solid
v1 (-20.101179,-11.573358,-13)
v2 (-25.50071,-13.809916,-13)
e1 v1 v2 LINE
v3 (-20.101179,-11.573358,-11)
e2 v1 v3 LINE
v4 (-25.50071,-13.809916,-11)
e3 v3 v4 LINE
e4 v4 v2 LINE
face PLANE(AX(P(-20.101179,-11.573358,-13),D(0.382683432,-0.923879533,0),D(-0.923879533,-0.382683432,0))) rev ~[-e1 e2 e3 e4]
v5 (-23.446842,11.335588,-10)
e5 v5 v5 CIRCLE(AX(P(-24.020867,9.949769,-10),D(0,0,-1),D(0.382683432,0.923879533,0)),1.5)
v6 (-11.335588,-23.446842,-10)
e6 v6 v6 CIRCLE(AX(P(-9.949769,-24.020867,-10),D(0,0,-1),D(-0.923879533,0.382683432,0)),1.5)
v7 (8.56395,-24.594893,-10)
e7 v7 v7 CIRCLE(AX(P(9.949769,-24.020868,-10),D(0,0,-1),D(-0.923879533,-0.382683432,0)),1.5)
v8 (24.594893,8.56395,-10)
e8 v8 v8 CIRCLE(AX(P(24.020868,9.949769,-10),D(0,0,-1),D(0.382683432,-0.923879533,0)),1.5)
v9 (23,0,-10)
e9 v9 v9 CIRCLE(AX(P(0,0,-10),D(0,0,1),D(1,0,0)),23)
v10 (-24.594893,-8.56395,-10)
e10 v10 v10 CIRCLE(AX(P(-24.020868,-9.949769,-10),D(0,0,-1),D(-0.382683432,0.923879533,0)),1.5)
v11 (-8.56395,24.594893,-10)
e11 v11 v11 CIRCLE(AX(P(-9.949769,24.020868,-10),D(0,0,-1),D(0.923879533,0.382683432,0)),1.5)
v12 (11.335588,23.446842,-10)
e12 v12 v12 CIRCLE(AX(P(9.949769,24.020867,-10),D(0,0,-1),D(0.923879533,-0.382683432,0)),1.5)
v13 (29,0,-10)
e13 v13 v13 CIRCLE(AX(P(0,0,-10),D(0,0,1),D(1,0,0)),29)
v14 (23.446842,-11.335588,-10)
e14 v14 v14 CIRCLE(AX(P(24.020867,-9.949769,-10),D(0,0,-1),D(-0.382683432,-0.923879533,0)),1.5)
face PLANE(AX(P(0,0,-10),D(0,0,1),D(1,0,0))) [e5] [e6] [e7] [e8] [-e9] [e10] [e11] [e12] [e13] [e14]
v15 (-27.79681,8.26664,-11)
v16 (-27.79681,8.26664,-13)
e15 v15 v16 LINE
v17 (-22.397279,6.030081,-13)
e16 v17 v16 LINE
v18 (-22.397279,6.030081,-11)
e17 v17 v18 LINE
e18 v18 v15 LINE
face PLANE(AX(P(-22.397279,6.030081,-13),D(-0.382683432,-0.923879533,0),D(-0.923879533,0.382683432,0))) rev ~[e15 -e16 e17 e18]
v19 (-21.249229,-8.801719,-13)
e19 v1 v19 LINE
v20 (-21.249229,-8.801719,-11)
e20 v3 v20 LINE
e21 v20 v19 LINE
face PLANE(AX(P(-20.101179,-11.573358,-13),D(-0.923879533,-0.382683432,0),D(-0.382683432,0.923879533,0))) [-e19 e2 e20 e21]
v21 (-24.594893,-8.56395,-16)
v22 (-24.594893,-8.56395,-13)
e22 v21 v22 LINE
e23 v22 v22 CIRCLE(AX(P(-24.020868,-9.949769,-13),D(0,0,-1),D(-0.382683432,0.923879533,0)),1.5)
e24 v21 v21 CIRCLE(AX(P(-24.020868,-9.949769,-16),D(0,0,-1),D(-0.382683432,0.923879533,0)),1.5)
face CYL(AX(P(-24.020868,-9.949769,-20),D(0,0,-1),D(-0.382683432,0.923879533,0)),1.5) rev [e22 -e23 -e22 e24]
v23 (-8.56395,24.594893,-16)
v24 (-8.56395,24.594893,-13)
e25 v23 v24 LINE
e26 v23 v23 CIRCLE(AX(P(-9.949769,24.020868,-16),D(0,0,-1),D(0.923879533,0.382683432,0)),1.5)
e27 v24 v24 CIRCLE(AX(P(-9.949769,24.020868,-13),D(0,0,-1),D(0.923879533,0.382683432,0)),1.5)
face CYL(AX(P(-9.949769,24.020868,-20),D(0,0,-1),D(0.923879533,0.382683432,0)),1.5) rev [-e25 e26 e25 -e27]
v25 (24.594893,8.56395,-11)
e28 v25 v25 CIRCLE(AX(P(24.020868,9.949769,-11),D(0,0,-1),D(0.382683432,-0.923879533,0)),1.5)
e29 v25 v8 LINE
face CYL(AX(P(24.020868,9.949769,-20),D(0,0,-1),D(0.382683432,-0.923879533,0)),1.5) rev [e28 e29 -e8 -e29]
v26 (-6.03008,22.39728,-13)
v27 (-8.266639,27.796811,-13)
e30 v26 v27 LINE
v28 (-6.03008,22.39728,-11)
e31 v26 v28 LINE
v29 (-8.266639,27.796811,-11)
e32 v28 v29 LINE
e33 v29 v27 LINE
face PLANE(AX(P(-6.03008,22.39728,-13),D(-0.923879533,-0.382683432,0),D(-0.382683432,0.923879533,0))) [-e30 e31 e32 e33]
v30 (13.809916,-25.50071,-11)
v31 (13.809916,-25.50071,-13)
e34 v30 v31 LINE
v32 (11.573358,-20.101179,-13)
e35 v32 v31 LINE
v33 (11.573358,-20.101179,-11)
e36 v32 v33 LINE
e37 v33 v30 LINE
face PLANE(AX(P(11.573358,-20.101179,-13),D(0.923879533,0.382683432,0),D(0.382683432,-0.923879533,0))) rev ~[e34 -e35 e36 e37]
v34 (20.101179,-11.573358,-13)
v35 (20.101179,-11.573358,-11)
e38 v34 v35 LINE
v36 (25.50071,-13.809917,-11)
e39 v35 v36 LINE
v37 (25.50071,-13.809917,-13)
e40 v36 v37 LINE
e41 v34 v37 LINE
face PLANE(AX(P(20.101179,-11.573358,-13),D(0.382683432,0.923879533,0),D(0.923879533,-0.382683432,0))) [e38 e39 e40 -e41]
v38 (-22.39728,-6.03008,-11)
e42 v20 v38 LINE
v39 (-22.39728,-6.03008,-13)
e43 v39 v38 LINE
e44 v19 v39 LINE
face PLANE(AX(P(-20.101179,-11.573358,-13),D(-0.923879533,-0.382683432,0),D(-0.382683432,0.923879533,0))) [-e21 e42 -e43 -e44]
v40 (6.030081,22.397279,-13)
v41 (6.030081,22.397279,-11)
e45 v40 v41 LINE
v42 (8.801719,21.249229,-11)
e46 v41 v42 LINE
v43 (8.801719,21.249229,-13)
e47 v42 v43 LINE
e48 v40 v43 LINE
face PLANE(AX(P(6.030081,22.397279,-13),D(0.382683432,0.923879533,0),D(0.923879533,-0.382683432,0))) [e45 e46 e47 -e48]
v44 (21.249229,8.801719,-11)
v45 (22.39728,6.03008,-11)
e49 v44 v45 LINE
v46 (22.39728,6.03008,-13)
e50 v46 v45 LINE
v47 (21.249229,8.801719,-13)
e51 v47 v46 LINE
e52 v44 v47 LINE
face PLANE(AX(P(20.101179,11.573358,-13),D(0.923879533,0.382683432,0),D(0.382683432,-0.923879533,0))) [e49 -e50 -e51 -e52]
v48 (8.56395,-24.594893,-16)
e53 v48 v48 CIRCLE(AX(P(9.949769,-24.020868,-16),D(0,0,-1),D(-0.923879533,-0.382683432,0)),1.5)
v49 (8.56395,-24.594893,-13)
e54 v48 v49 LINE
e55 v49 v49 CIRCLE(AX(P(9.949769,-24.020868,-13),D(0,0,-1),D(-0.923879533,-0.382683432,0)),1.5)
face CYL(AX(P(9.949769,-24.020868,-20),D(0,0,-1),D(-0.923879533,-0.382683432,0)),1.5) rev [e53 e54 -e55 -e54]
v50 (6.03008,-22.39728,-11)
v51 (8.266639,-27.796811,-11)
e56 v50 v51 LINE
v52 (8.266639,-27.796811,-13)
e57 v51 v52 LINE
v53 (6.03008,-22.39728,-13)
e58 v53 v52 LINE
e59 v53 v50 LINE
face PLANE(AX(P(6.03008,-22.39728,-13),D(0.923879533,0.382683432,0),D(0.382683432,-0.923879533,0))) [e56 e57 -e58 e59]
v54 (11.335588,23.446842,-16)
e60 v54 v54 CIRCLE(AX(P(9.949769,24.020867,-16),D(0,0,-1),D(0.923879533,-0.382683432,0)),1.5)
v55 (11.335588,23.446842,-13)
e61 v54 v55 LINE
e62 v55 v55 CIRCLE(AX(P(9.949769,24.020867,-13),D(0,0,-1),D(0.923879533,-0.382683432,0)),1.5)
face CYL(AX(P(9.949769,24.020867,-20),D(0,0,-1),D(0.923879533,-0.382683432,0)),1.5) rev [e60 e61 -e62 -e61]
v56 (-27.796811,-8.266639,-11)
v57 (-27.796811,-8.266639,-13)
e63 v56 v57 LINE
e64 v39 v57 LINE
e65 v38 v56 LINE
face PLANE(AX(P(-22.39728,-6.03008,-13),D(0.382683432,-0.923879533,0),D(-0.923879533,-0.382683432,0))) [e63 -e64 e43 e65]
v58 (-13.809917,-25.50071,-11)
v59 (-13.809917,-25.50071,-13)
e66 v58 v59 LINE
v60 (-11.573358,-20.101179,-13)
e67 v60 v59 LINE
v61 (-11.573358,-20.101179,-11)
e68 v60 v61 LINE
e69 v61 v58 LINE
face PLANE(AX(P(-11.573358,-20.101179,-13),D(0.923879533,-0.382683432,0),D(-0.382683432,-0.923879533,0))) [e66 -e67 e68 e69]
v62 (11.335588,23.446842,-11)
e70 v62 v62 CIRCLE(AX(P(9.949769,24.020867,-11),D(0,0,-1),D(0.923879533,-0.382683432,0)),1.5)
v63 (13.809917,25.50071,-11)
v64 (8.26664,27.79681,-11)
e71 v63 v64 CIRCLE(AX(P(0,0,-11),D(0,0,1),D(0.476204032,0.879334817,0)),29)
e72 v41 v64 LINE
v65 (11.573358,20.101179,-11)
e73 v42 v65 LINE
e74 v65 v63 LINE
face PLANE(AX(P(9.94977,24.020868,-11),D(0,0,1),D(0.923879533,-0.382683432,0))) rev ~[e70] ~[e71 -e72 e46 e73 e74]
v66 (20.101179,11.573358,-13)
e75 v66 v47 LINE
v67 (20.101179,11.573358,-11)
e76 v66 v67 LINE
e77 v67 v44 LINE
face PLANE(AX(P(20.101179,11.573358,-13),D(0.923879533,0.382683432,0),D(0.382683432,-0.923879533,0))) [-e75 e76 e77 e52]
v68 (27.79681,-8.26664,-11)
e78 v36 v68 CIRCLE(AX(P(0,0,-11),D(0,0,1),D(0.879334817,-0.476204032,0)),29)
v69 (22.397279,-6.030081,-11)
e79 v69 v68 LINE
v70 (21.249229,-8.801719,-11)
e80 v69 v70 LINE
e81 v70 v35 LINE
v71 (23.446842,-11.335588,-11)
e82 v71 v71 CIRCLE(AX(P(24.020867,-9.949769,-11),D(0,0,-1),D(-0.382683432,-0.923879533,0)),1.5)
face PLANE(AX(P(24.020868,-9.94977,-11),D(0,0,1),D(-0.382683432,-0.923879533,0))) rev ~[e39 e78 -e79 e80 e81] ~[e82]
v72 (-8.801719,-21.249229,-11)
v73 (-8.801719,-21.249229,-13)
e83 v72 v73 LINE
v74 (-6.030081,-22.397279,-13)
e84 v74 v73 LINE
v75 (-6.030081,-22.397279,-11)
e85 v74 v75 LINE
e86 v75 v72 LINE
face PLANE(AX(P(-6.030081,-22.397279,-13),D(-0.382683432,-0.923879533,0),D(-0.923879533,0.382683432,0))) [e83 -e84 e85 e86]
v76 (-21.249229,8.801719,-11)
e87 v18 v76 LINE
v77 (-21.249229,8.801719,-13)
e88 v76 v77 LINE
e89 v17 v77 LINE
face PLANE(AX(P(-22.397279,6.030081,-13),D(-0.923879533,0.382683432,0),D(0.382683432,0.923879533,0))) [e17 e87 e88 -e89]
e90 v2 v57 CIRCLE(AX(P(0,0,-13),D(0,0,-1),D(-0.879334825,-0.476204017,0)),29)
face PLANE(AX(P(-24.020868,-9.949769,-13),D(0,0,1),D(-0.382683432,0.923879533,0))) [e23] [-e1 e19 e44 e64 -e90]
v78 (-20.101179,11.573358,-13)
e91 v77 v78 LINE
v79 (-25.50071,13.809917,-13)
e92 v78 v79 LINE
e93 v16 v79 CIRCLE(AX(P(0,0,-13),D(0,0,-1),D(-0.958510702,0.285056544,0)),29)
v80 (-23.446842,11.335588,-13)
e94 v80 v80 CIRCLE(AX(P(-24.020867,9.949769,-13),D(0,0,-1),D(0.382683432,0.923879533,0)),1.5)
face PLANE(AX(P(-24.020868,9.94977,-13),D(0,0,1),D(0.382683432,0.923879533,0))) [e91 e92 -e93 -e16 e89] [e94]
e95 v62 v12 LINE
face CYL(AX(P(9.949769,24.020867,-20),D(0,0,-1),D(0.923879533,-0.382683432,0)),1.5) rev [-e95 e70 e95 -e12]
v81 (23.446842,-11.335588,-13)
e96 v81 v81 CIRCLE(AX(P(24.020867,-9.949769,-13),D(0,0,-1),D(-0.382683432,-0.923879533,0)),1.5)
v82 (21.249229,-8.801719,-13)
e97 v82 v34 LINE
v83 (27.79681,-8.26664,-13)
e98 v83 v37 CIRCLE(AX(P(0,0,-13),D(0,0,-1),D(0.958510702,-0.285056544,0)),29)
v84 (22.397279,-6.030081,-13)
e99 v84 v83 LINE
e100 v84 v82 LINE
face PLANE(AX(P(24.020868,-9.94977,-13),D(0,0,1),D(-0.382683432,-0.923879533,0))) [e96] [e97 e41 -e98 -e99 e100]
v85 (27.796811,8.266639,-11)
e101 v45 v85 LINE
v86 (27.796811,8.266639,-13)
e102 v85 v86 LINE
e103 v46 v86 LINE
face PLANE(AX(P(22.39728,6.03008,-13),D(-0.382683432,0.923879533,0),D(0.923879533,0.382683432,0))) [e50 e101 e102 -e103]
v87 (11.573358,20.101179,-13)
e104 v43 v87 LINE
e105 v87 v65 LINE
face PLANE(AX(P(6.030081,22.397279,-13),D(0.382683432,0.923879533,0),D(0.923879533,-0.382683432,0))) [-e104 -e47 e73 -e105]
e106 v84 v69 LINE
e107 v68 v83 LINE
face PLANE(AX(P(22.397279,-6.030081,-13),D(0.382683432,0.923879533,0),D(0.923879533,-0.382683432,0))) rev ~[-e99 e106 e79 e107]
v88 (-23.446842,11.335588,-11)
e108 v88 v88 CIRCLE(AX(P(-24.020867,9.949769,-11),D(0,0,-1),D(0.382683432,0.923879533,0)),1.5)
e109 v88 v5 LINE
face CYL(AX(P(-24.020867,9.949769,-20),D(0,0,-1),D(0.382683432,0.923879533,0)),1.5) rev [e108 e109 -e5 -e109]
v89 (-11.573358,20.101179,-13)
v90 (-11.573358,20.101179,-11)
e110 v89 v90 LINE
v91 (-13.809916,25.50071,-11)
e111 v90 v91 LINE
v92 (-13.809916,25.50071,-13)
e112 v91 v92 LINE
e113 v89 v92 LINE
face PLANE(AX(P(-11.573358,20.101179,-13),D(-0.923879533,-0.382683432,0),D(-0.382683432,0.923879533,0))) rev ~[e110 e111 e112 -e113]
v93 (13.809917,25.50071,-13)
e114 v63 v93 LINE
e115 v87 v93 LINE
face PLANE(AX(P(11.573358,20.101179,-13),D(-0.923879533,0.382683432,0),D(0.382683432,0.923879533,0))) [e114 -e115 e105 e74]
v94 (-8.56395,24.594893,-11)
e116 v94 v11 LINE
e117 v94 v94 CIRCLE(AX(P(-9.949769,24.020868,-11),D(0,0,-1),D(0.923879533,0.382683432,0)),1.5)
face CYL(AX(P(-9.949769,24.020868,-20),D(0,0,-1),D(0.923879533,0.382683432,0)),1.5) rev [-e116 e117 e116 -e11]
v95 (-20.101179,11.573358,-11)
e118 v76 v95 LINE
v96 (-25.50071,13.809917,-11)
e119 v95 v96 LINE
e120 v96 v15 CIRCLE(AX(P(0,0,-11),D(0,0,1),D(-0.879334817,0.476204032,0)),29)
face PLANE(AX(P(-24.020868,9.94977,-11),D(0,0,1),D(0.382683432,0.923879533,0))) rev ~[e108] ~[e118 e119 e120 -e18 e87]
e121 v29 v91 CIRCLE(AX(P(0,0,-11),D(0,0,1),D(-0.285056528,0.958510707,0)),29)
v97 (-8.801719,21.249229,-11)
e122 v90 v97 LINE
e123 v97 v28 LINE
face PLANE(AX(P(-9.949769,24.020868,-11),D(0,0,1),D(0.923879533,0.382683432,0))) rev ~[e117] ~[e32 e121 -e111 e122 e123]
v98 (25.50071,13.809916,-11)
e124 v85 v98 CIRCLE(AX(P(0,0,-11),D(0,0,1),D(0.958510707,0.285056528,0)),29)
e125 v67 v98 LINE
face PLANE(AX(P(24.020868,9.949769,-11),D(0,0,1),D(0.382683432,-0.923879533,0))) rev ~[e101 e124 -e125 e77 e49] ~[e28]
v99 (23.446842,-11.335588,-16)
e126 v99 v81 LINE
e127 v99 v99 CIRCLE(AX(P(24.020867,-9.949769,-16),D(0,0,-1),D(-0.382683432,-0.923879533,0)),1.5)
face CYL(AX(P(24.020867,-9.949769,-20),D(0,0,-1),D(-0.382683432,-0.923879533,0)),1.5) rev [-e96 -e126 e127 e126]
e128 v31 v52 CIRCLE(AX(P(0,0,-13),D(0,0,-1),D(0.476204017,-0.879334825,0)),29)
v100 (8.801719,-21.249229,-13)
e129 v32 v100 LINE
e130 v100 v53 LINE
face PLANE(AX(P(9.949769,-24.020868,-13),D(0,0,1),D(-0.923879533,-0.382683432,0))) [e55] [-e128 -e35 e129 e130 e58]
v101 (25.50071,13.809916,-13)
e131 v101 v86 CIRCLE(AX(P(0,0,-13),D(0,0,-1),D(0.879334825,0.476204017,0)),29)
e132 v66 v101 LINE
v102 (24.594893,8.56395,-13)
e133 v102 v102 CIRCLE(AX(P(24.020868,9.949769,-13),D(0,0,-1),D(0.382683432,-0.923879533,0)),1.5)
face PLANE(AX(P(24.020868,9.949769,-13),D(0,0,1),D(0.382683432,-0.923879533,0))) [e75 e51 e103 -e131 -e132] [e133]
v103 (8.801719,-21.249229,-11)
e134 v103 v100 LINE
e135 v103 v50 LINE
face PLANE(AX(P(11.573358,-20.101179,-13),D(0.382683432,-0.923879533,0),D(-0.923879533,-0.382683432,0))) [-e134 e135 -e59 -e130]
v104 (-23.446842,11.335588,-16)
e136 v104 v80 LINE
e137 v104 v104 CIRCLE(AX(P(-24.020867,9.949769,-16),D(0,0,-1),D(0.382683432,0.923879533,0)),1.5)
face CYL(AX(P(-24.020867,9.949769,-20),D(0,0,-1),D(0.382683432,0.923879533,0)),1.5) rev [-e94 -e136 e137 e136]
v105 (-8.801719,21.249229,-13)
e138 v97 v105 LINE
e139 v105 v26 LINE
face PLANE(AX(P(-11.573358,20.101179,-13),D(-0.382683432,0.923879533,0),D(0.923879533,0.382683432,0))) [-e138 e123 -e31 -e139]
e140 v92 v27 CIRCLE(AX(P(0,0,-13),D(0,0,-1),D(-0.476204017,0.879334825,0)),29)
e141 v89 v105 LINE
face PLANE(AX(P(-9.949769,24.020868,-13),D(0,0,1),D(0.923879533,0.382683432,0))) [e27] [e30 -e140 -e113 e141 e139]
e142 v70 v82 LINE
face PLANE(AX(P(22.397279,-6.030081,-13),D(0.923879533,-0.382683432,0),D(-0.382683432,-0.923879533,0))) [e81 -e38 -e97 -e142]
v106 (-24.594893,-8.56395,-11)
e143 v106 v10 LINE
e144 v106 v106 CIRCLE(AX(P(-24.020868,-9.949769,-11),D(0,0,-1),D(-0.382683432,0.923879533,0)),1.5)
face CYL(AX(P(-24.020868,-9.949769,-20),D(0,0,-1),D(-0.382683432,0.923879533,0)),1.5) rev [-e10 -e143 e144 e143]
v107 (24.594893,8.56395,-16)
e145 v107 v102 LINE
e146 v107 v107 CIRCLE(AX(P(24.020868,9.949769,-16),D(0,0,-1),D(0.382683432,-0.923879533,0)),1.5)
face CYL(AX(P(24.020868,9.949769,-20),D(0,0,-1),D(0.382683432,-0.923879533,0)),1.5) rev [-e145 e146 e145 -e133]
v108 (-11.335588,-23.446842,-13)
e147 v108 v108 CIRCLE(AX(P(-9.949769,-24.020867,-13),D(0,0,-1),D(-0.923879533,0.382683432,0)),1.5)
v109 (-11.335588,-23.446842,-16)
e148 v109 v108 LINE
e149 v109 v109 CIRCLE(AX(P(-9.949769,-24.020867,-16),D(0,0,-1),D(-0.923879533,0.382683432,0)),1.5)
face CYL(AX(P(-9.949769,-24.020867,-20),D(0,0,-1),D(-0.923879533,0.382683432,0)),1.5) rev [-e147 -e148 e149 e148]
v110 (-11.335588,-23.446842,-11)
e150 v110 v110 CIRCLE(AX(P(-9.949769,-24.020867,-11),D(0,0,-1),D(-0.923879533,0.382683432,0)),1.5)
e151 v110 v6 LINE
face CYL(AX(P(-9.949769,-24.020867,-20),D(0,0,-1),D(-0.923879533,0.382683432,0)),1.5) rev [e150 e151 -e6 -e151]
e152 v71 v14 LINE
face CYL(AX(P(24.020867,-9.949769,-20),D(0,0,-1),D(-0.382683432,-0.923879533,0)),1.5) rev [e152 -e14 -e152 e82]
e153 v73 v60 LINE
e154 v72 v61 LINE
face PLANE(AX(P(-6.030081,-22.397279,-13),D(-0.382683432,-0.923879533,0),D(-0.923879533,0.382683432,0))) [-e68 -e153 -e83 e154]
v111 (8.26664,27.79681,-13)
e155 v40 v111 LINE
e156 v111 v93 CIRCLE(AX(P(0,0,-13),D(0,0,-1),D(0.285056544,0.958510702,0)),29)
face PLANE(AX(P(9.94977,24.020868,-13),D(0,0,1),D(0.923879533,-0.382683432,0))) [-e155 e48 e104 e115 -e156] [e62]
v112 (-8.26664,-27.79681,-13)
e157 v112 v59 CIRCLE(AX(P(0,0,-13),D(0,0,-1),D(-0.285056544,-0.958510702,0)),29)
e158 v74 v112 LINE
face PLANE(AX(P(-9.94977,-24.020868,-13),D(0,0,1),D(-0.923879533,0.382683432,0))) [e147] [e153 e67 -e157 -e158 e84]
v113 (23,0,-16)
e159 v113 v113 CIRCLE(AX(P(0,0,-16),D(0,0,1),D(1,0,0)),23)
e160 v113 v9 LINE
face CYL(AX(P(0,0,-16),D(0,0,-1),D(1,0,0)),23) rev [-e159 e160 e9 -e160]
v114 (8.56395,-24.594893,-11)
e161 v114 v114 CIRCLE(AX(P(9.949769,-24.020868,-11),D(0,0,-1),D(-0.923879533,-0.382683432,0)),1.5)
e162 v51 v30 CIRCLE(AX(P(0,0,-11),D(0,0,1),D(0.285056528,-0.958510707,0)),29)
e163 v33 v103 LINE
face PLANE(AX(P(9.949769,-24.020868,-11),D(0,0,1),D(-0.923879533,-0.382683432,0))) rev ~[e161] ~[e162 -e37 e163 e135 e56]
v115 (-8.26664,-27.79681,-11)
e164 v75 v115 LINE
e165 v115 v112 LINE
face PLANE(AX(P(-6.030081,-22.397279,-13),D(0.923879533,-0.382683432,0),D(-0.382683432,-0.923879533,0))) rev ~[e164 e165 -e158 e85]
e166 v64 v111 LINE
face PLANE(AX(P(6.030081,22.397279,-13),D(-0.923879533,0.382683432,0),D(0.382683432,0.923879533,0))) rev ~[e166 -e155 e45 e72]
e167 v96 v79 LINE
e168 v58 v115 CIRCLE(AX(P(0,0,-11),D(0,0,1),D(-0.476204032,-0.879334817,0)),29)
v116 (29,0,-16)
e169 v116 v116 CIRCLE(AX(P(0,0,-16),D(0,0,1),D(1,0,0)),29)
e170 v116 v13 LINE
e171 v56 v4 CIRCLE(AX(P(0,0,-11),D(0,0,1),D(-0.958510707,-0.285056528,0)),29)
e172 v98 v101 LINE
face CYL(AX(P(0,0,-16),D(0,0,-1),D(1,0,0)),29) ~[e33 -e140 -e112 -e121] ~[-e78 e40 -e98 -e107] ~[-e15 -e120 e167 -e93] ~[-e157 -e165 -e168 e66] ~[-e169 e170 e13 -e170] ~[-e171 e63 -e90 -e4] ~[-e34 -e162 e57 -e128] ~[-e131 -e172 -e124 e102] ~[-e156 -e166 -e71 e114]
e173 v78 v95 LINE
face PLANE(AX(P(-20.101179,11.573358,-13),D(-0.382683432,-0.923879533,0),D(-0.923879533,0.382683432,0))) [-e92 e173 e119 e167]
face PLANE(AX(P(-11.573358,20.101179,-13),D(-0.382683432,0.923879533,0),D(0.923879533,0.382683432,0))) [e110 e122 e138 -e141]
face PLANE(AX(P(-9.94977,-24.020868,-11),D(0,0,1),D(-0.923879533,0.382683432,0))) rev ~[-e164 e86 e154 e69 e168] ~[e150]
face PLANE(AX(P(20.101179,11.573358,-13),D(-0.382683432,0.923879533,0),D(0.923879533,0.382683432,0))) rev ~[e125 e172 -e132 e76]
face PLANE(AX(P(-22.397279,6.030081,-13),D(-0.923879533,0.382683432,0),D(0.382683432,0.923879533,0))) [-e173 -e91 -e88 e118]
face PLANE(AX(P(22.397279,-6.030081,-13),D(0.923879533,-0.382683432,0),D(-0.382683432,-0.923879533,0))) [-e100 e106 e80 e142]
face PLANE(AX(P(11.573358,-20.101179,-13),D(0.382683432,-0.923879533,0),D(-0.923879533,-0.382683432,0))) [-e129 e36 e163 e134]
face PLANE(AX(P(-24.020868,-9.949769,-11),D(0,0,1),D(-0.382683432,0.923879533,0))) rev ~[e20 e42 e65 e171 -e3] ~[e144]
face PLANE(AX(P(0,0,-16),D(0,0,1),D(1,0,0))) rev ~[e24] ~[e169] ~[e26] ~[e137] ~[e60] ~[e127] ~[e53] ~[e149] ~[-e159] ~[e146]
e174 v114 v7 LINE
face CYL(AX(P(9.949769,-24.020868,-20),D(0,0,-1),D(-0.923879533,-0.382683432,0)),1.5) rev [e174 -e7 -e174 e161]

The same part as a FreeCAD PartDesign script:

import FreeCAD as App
import Part
import Sketcher
from FreeCAD import Vector
Q = App.Units.Quantity

doc = App.newDocument("Part")
body = doc.addObject("PartDesign::Body", "Body")

sketch1 = doc.addObject("Sketcher::SketchObject", "Sketch")
body.addObject(sketch1)
sketch1.AttachmentSupport = (doc.XY_Plane, [""])
sketch1.MapMode = "FlatFace"
sketch1.AttachmentOffset = App.Placement(Vector(0, 0, -13), App.Rotation())
sketch1.addGeometry([
    Part.LineSegment(Vector(-29, -3, 0), Vector(-23, -3, 0)),
    Part.LineSegment(Vector(-23, -3, 0), Vector(-23, 3, 0)),
    Part.LineSegment(Vector(-23, 3, 0), Vector(-29, 3, 0)),
    Part.LineSegment(Vector(-29, 3, 0), Vector(-29, -3, 0)),
], False)
sketch1.addConstraint([
    Sketcher.Constraint("Coincident", 0, 2, 1, 1),
    Sketcher.Constraint("Coincident", 1, 2, 2, 1),
    Sketcher.Constraint("Coincident", 2, 2, 3, 1),
    Sketcher.Constraint("Coincident", 3, 2, 0, 1),
    Sketcher.Constraint("Horizontal", 0),
    Sketcher.Constraint("Vertical", 1),
    Sketcher.Constraint("Horizontal", 2),
    Sketcher.Constraint("Vertical", 3),
    Sketcher.Constraint("Equal", 2, 1),
    Sketcher.Constraint("DistanceX", 0, 1, 0, 2, Q("6 mm")),
    Sketcher.Constraint("DistanceX", 0, 2, -1, 1, Q("23 mm")),
    Sketcher.Constraint("DistanceY", 0, 2, -1, 1, Q("3 mm")),
])
pad1 = doc.addObject("PartDesign::Pad", "Pad")
body.addObject(pad1)
pad1.Profile = sketch1
pad1.Length = 2
body2 = doc.addObject("PartDesign::Body", "Body001")

sketch2 = doc.addObject("Sketcher::SketchObject", "Sketch001")
body2.addObject(sketch2)
sketch2.AttachmentSupport = (doc.getObject("XY_Plane001"), [""])
sketch2.MapMode = "FlatFace"
sketch2.addGeometry([
    Part.LineSegment(Vector(0, 6, 0), Vector(0, 0, 0)),
    Part.LineSegment(Vector(0, 0, 0), Vector(6, 0, 0)),
    Part.LineSegment(Vector(6, 0, 0), Vector(6, 6, 0)),
    Part.LineSegment(Vector(6, 6, 0), Vector(0, 6, 0)),
], False)
sketch2.addConstraint([
    Sketcher.Constraint("Coincident", 0, 2, 1, 1),
    Sketcher.Constraint("Coincident", 1, 2, 2, 1),
    Sketcher.Constraint("Coincident", 2, 2, 3, 1),
    Sketcher.Constraint("Coincident", 3, 2, 0, 1),
    Sketcher.Constraint("Vertical", 0),
    Sketcher.Constraint("Horizontal", 1),
    Sketcher.Constraint("Vertical", 2),
    Sketcher.Constraint("Horizontal", 3),
    Sketcher.Constraint("Coincident", 0, 2, -1, 1),
    Sketcher.Constraint("Equal", 3, 0),
    Sketcher.Constraint("DistanceX", 1, 1, 1, 2, Q("6 mm")),
])
pad2 = doc.addObject("PartDesign::Pad", "Pad001")
body2.addObject(pad2)
pad2.Profile = sketch2
pad2.Length = 2
body3 = doc.addObject("PartDesign::Body", "Body002")
doc.recompute()

body2.Placement = App.Placement(Vector(-14.142136, -18.384776, -13), App.Rotation(Vector(0, 0, 1), 135))
boolean = doc.addObject("PartDesign::Boolean", "Boolean")
body3.addObject(boolean)
boolean.Type = "Fuse"
boolean.addObjects([body2])
body4 = doc.addObject("PartDesign::Body", "Body003")

sketch3 = doc.addObject("Sketcher::SketchObject", "Sketch002")
body4.addObject(sketch3)
sketch3.AttachmentSupport = (doc.getObject("XY_Plane003"), [""])
sketch3.MapMode = "FlatFace"
sketch3.AttachmentOffset = App.Placement(Vector(0, 0, -13), App.Rotation())
sketch3.addGeometry([
    Part.LineSegment(Vector(3, -29, 0), Vector(3, -23, 0)),
    Part.LineSegment(Vector(3, -23, 0), Vector(-3, -23, 0)),
    Part.LineSegment(Vector(-3, -23, 0), Vector(-3, -29, 0)),
    Part.LineSegment(Vector(-3, -29, 0), Vector(3, -29, 0)),
], False)
sketch3.addConstraint([
    Sketcher.Constraint("Coincident", 0, 2, 1, 1),
    Sketcher.Constraint("Coincident", 1, 2, 2, 1),
    Sketcher.Constraint("Coincident", 2, 2, 3, 1),
    Sketcher.Constraint("Coincident", 3, 2, 0, 1),
    Sketcher.Constraint("Vertical", 0),
    Sketcher.Constraint("Horizontal", 1),
    Sketcher.Constraint("Vertical", 2),
    Sketcher.Constraint("Horizontal", 3),
    Sketcher.Constraint("Equal", 3, 0),
    Sketcher.Constraint("DistanceX", 1, 2, 1, 1, Q("6 mm")),
    Sketcher.Constraint("DistanceX", -1, 1, 0, 2, Q("3 mm")),
    Sketcher.Constraint("DistanceY", 0, 2, -1, 1, Q("23 mm")),
])
pad3 = doc.addObject("PartDesign::Pad", "Pad002")
body4.addObject(pad3)
pad3.Profile = sketch3
pad3.Length = 2
body5 = doc.addObject("PartDesign::Body", "Body004")

sketch4 = doc.addObject("Sketcher::SketchObject", "Sketch003")
body5.addObject(sketch4)
sketch4.AttachmentSupport = (doc.getObject("XY_Plane004"), [""])
sketch4.MapMode = "FlatFace"
sketch4.addGeometry([
    Part.LineSegment(Vector(0, 6, 0), Vector(0, 0, 0)),
    Part.LineSegment(Vector(0, 0, 0), Vector(6, 0, 0)),
    Part.LineSegment(Vector(6, 0, 0), Vector(6, 6, 0)),
    Part.LineSegment(Vector(6, 6, 0), Vector(0, 6, 0)),
], False)
sketch4.addConstraint([
    Sketcher.Constraint("Coincident", 0, 2, 1, 1),
    Sketcher.Constraint("Coincident", 1, 2, 2, 1),
    Sketcher.Constraint("Coincident", 2, 2, 3, 1),
    Sketcher.Constraint("Coincident", 3, 2, 0, 1),
    Sketcher.Constraint("Vertical", 0),
    Sketcher.Constraint("Horizontal", 1),
    Sketcher.Constraint("Vertical", 2),
    Sketcher.Constraint("Horizontal", 3),
    Sketcher.Constraint("Coincident", 0, 2, -1, 1),
    Sketcher.Constraint("Equal", 3, 0),
    Sketcher.Constraint("DistanceX", 1, 1, 1, 2, Q("6 mm")),
])
pad4 = doc.addObject("PartDesign::Pad", "Pad003")
body5.addObject(pad4)
pad4.Profile = sketch4
pad4.Length = 2
body6 = doc.addObject("PartDesign::Body", "Body005")
doc.recompute()

body5.Placement = App.Placement(Vector(18.384776, -14.142136, -13), App.Rotation(Vector(0, 0, 1), 225))
boolean2 = doc.addObject("PartDesign::Boolean", "Boolean001")
body6.addObject(boolean2)
boolean2.Type = "Fuse"
boolean2.addObjects([body5])
body7 = doc.addObject("PartDesign::Body", "Body006")

sketch5 = doc.addObject("Sketcher::SketchObject", "Sketch004")
body7.addObject(sketch5)
sketch5.AttachmentSupport = (doc.getObject("XY_Plane006"), [""])
sketch5.MapMode = "FlatFace"
sketch5.AttachmentOffset = App.Placement(Vector(0, 0, -13), App.Rotation())
sketch5.addGeometry([
    Part.LineSegment(Vector(29, 3, 0), Vector(23, 3, 0)),
    Part.LineSegment(Vector(23, 3, 0), Vector(23, -3, 0)),
    Part.LineSegment(Vector(23, -3, 0), Vector(29, -3, 0)),
    Part.LineSegment(Vector(29, -3, 0), Vector(29, 3, 0)),
], False)
sketch5.addConstraint([
    Sketcher.Constraint("Coincident", 0, 2, 1, 1),
    Sketcher.Constraint("Coincident", 1, 2, 2, 1),
    Sketcher.Constraint("Coincident", 2, 2, 3, 1),
    Sketcher.Constraint("Coincident", 3, 2, 0, 1),
    Sketcher.Constraint("Horizontal", 0),
    Sketcher.Constraint("Vertical", 1),
    Sketcher.Constraint("Horizontal", 2),
    Sketcher.Constraint("Vertical", 3),
    Sketcher.Constraint("Equal", 2, 1),
    Sketcher.Constraint("DistanceX", 0, 2, 0, 1, Q("6 mm")),
    Sketcher.Constraint("DistanceX", -1, 1, 0, 2, Q("23 mm")),
    Sketcher.Constraint("DistanceY", -1, 1, 0, 2, Q("3 mm")),
])
pad5 = doc.addObject("PartDesign::Pad", "Pad004")
body7.addObject(pad5)
pad5.Profile = sketch5
pad5.Length = 2
body8 = doc.addObject("PartDesign::Body", "Body007")

sketch6 = doc.addObject("Sketcher::SketchObject", "Sketch005")
body8.addObject(sketch6)
sketch6.AttachmentSupport = (doc.getObject("XY_Plane007"), [""])
sketch6.MapMode = "FlatFace"
sketch6.addGeometry([
    Part.LineSegment(Vector(0, 6, 0), Vector(0, 0, 0)),
    Part.LineSegment(Vector(0, 0, 0), Vector(6, 0, 0)),
    Part.LineSegment(Vector(6, 0, 0), Vector(6, 6, 0)),
    Part.LineSegment(Vector(6, 6, 0), Vector(0, 6, 0)),
], False)
sketch6.addConstraint([
    Sketcher.Constraint("Coincident", 0, 2, 1, 1),
    Sketcher.Constraint("Coincident", 1, 2, 2, 1),
    Sketcher.Constraint("Coincident", 2, 2, 3, 1),
    Sketcher.Constraint("Coincident", 3, 2, 0, 1),
    Sketcher.Constraint("Vertical", 0),
    Sketcher.Constraint("Horizontal", 1),
    Sketcher.Constraint("Vertical", 2),
    Sketcher.Constraint("Horizontal", 3),
    Sketcher.Constraint("Coincident", 0, 2, -1, 1),
    Sketcher.Constraint("Equal", 3, 0),
    Sketcher.Constraint("DistanceX", 1, 1, 1, 2, Q("6 mm")),
])
pad6 = doc.addObject("PartDesign::Pad", "Pad005")
body8.addObject(pad6)
pad6.Profile = sketch6
pad6.Length = 2
body9 = doc.addObject("PartDesign::Body", "Body008")
doc.recompute()

body8.Placement = App.Placement(Vector(14.142136, 18.384776, -13), App.Rotation(Vector(0, 0, -1), 45))
boolean3 = doc.addObject("PartDesign::Boolean", "Boolean002")
body9.addObject(boolean3)
boolean3.Type = "Fuse"
boolean3.addObjects([body8])
body10 = doc.addObject("PartDesign::Body", "Body009")

sketch7 = doc.addObject("Sketcher::SketchObject", "Sketch006")
body10.addObject(sketch7)
sketch7.AttachmentSupport = (doc.getObject("XY_Plane009"), [""])
sketch7.MapMode = "FlatFace"
sketch7.AttachmentOffset = App.Placement(Vector(0, 0, -13), App.Rotation())
sketch7.addGeometry([
    Part.LineSegment(Vector(-3, 29, 0), Vector(-3, 23, 0)),
    Part.LineSegment(Vector(-3, 23, 0), Vector(3, 23, 0)),
    Part.LineSegment(Vector(3, 23, 0), Vector(3, 29, 0)),
    Part.LineSegment(Vector(3, 29, 0), Vector(-3, 29, 0)),
], False)
sketch7.addConstraint([
    Sketcher.Constraint("Coincident", 0, 2, 1, 1),
    Sketcher.Constraint("Coincident", 1, 2, 2, 1),
    Sketcher.Constraint("Coincident", 2, 2, 3, 1),
    Sketcher.Constraint("Coincident", 3, 2, 0, 1),
    Sketcher.Constraint("Vertical", 0),
    Sketcher.Constraint("Horizontal", 1),
    Sketcher.Constraint("Vertical", 2),
    Sketcher.Constraint("Horizontal", 3),
    Sketcher.Constraint("Equal", 3, 0),
    Sketcher.Constraint("DistanceX", 1, 1, 1, 2, Q("6 mm")),
    Sketcher.Constraint("DistanceX", 0, 2, -1, 1, Q("3 mm")),
    Sketcher.Constraint("DistanceY", -1, 1, 0, 2, Q("23 mm")),
])
pad7 = doc.addObject("PartDesign::Pad", "Pad006")
body10.addObject(pad7)
pad7.Profile = sketch7
pad7.Length = 2
body11 = doc.addObject("PartDesign::Body", "Body010")

sketch8 = doc.addObject("Sketcher::SketchObject", "Sketch007")
body11.addObject(sketch8)
sketch8.AttachmentSupport = (doc.getObject("XY_Plane010"), [""])
sketch8.MapMode = "FlatFace"
sketch8.addGeometry([
    Part.LineSegment(Vector(0, 6, 0), Vector(0, 0, 0)),
    Part.LineSegment(Vector(0, 0, 0), Vector(6, 0, 0)),
    Part.LineSegment(Vector(6, 0, 0), Vector(6, 6, 0)),
    Part.LineSegment(Vector(6, 6, 0), Vector(0, 6, 0)),
], False)
sketch8.addConstraint([
    Sketcher.Constraint("Coincident", 0, 2, 1, 1),
    Sketcher.Constraint("Coincident", 1, 2, 2, 1),
    Sketcher.Constraint("Coincident", 2, 2, 3, 1),
    Sketcher.Constraint("Coincident", 3, 2, 0, 1),
    Sketcher.Constraint("Vertical", 0),
    Sketcher.Constraint("Horizontal", 1),
    Sketcher.Constraint("Vertical", 2),
    Sketcher.Constraint("Horizontal", 3),
    Sketcher.Constraint("Coincident", 0, 2, -1, 1),
    Sketcher.Constraint("Equal", 3, 0),
    Sketcher.Constraint("DistanceX", 1, 1, 1, 2, Q("6 mm")),
])
pad8 = doc.addObject("PartDesign::Pad", "Pad007")
body11.addObject(pad8)
pad8.Profile = sketch8
pad8.Length = 2
body12 = doc.addObject("PartDesign::Body", "Body011")
body12.AllowCompound = True
doc.recompute()

body11.Placement = App.Placement(Vector(-18.384776, 14.142136, -13), App.Rotation(Vector(0, 0, 1), 45))
boolean4 = doc.addObject("PartDesign::Boolean", "Boolean003")
body12.addObject(boolean4)
boolean4.Type = "Fuse"
boolean4.addObjects([body11])
doc.recompute()

boolean5 = doc.addObject("PartDesign::Boolean", "Boolean004")
body12.addObject(boolean5)
boolean5.Type = "Fuse"
boolean5.addObjects([body])
doc.recompute()

boolean6 = doc.addObject("PartDesign::Boolean", "Boolean005")
body12.addObject(boolean6)
boolean6.Type = "Fuse"
boolean6.addObjects([body3])
doc.recompute()

boolean7 = doc.addObject("PartDesign::Boolean", "Boolean006")
body12.addObject(boolean7)
boolean7.Type = "Fuse"
boolean7.addObjects([body4])
doc.recompute()

boolean8 = doc.addObject("PartDesign::Boolean", "Boolean007")
body12.addObject(boolean8)
boolean8.Type = "Fuse"
boolean8.addObjects([body6])
doc.recompute()

boolean9 = doc.addObject("PartDesign::Boolean", "Boolean008")
body12.addObject(boolean9)
boolean9.Type = "Fuse"
boolean9.addObjects([body7])
doc.recompute()

boolean10 = doc.addObject("PartDesign::Boolean", "Boolean009")
body12.addObject(boolean10)
boolean10.Type = "Fuse"
boolean10.addObjects([body9])
doc.recompute()

boolean11 = doc.addObject("PartDesign::Boolean", "Boolean010")
body12.addObject(boolean11)
boolean11.Type = "Fuse"
boolean11.addObjects([body10])
body13 = doc.addObject("PartDesign::Body", "Body012")
body13.AllowCompound = True
doc.recompute()

body12.Placement = App.Placement(Vector(0, 0, 0), App.Rotation(Vector(0, 0, 1), 22.5))
boolean12 = doc.addObject("PartDesign::Boolean", "Boolean011")
body13.addObject(boolean12)
boolean12.Type = "Fuse"
boolean12.addObjects([body12])
body14 = doc.addObject("PartDesign::Body", "Body013")

sketch9 = doc.addObject("Sketcher::SketchObject", "Sketch008")
body14.addObject(sketch9)
sketch9.AttachmentSupport = (doc.getObject("XY_Plane013"), [""])
sketch9.MapMode = "FlatFace"
sketch9.addGeometry(Part.Circle(Vector(0, 0, 0), Vector(0, 0, 1), 1.5), False)
sketch9.addConstraint([
    Sketcher.Constraint("Coincident", 0, 3, -1, 1),
    Sketcher.Constraint("Diameter", 0, Q("3 mm")),
])
pad9 = doc.addObject("PartDesign::Pad", "Pad008")
body14.addObject(pad9)
pad9.Profile = sketch9
pad9.Length = 15
body15 = doc.addObject("PartDesign::Body", "Body014")
doc.recompute()

body14.Placement = App.Placement(Vector(-18.384776, 18.384776, -20), App.Rotation(Vector(0, 0, 1), 45))
boolean13 = doc.addObject("PartDesign::Boolean", "Boolean012")
body15.addObject(boolean13)
boolean13.Type = "Fuse"
boolean13.addObjects([body14])
body16 = doc.addObject("PartDesign::Body", "Body015")

sketch10 = doc.addObject("Sketcher::SketchObject", "Sketch009")
body16.addObject(sketch10)
sketch10.AttachmentSupport = (doc.getObject("XY_Plane015"), [""])
sketch10.MapMode = "FlatFace"
sketch10.AttachmentOffset = App.Placement(Vector(0, 0, -20), App.Rotation())
sketch10.addGeometry(Part.Circle(Vector(-26, 0, 0), Vector(0, 0, 1), 1.5), False)
sketch10.addConstraint([
    Sketcher.Constraint("PointOnObject", 0, 3, -1),
    Sketcher.Constraint("Diameter", 0, Q("3 mm")),
    Sketcher.Constraint("DistanceX", 0, 3, -1, 1, Q("26 mm")),
])
pad10 = doc.addObject("PartDesign::Pad", "Pad009")
body16.addObject(pad10)
pad10.Profile = sketch10
pad10.Length = 15
body17 = doc.addObject("PartDesign::Body", "Body016")

sketch11 = doc.addObject("Sketcher::SketchObject", "Sketch010")
body17.addObject(sketch11)
sketch11.AttachmentSupport = (doc.getObject("XY_Plane016"), [""])
sketch11.MapMode = "FlatFace"
sketch11.addGeometry(Part.Circle(Vector(0, 0, 0), Vector(0, 0, 1), 1.5), False)
sketch11.addConstraint([
    Sketcher.Constraint("Coincident", 0, 3, -1, 1),
    Sketcher.Constraint("Diameter", 0, Q("3 mm")),
])
pad11 = doc.addObject("PartDesign::Pad", "Pad010")
body17.addObject(pad11)
pad11.Profile = sketch11
pad11.Length = 15
body18 = doc.addObject("PartDesign::Body", "Body017")
doc.recompute()

body17.Placement = App.Placement(Vector(-18.384776, -18.384776, -20), App.Rotation(Vector(0, 0, 1), 135))
boolean14 = doc.addObject("PartDesign::Boolean", "Boolean013")
body18.addObject(boolean14)
boolean14.Type = "Fuse"
boolean14.addObjects([body17])
body19 = doc.addObject("PartDesign::Body", "Body018")

sketch12 = doc.addObject("Sketcher::SketchObject", "Sketch011")
body19.addObject(sketch12)
sketch12.AttachmentSupport = (doc.getObject("XY_Plane018"), [""])
sketch12.MapMode = "FlatFace"
sketch12.AttachmentOffset = App.Placement(Vector(0, 0, -20), App.Rotation())
sketch12.addGeometry(Part.Circle(Vector(0, -26, 0), Vector(0, 0, 1), 1.5), False)
sketch12.addConstraint([
    Sketcher.Constraint("PointOnObject", 0, 3, -2),
    Sketcher.Constraint("Diameter", 0, Q("3 mm")),
    Sketcher.Constraint("DistanceY", 0, 3, -1, 1, Q("26 mm")),
])
pad12 = doc.addObject("PartDesign::Pad", "Pad011")
body19.addObject(pad12)
pad12.Profile = sketch12
pad12.Length = 15
body20 = doc.addObject("PartDesign::Body", "Body019")

sketch13 = doc.addObject("Sketcher::SketchObject", "Sketch012")
body20.addObject(sketch13)
sketch13.AttachmentSupport = (doc.getObject("XY_Plane019"), [""])
sketch13.MapMode = "FlatFace"
sketch13.addGeometry(Part.Circle(Vector(0, 0, 0), Vector(0, 0, 1), 1.5), False)
sketch13.addConstraint([
    Sketcher.Constraint("Coincident", 0, 3, -1, 1),
    Sketcher.Constraint("Diameter", 0, Q("3 mm")),
])
pad13 = doc.addObject("PartDesign::Pad", "Pad012")
body20.addObject(pad13)
pad13.Profile = sketch13
pad13.Length = 15
body21 = doc.addObject("PartDesign::Body", "Body020")
doc.recompute()

body20.Placement = App.Placement(Vector(18.384776, -18.384776, -20), App.Rotation(Vector(0, 0, 1), 225))
boolean15 = doc.addObject("PartDesign::Boolean", "Boolean014")
body21.addObject(boolean15)
boolean15.Type = "Fuse"
boolean15.addObjects([body20])
body22 = doc.addObject("PartDesign::Body", "Body021")

sketch14 = doc.addObject("Sketcher::SketchObject", "Sketch013")
body22.addObject(sketch14)
sketch14.AttachmentSupport = (doc.getObject("XY_Plane021"), [""])
sketch14.MapMode = "FlatFace"
sketch14.AttachmentOffset = App.Placement(Vector(0, 0, -20), App.Rotation())
sketch14.addGeometry(Part.Circle(Vector(26, 0, 0), Vector(0, 0, 1), 1.5), False)
sketch14.addConstraint([
    Sketcher.Constraint("PointOnObject", 0, 3, -1),
    Sketcher.Constraint("Diameter", 0, Q("3 mm")),
    Sketcher.Constraint("DistanceX", -1, 1, 0, 3, Q("26 mm")),
])
pad14 = doc.addObject("PartDesign::Pad", "Pad013")
body22.addObject(pad14)
pad14.Profile = sketch14
pad14.Length = 15
body23 = doc.addObject("PartDesign::Body", "Body022")

sketch15 = doc.addObject("Sketcher::SketchObject", "Sketch014")
body23.addObject(sketch15)
sketch15.AttachmentSupport = (doc.getObject("XY_Plane022"), [""])
sketch15.MapMode = "FlatFace"
sketch15.addGeometry(Part.Circle(Vector(0, 0, 0), Vector(0, 0, 1), 1.5), False)
sketch15.addConstraint([
    Sketcher.Constraint("Coincident", 0, 3, -1, 1),
    Sketcher.Constraint("Diameter", 0, Q("3 mm")),
])
pad15 = doc.addObject("PartDesign::Pad", "Pad014")
body23.addObject(pad15)
pad15.Profile = sketch15
pad15.Length = 15
body24 = doc.addObject("PartDesign::Body", "Body023")
doc.recompute()

body23.Placement = App.Placement(Vector(18.384776, 18.384776, -20), App.Rotation(Vector(0, 0, -1), 45))
boolean16 = doc.addObject("PartDesign::Boolean", "Boolean015")
body24.addObject(boolean16)
boolean16.Type = "Fuse"
boolean16.addObjects([body23])
body25 = doc.addObject("PartDesign::Body", "Body024")
body25.AllowCompound = True

sketch16 = doc.addObject("Sketcher::SketchObject", "Sketch015")
body25.addObject(sketch16)
sketch16.AttachmentSupport = (doc.getObject("XY_Plane024"), [""])
sketch16.MapMode = "FlatFace"
sketch16.AttachmentOffset = App.Placement(Vector(0, 0, -20), App.Rotation())
sketch16.addGeometry(Part.Circle(Vector(0, 26, 0), Vector(0, 0, 1), 1.5), False)
sketch16.addConstraint([
    Sketcher.Constraint("PointOnObject", 0, 3, -2),
    Sketcher.Constraint("Diameter", 0, Q("3 mm")),
    Sketcher.Constraint("DistanceY", -1, 1, 0, 3, Q("26 mm")),
])
pad16 = doc.addObject("PartDesign::Pad", "Pad015")
body25.addObject(pad16)
pad16.Profile = sketch16
pad16.Length = 15
doc.recompute()

boolean17 = doc.addObject("PartDesign::Boolean", "Boolean016")
body25.addObject(boolean17)
boolean17.Type = "Fuse"
boolean17.addObjects([body15])
doc.recompute()

boolean18 = doc.addObject("PartDesign::Boolean", "Boolean017")
body25.addObject(boolean18)
boolean18.Type = "Fuse"
boolean18.addObjects([body16])
doc.recompute()

boolean19 = doc.addObject("PartDesign::Boolean", "Boolean018")
body25.addObject(boolean19)
boolean19.Type = "Fuse"
boolean19.addObjects([body18])
doc.recompute()

boolean20 = doc.addObject("PartDesign::Boolean", "Boolean019")
body25.addObject(boolean20)
boolean20.Type = "Fuse"
boolean20.addObjects([body19])
doc.recompute()

boolean21 = doc.addObject("PartDesign::Boolean", "Boolean020")
body25.addObject(boolean21)
boolean21.Type = "Fuse"
boolean21.addObjects([body21])
doc.recompute()

boolean22 = doc.addObject("PartDesign::Boolean", "Boolean021")
body25.addObject(boolean22)
boolean22.Type = "Fuse"
boolean22.addObjects([body22])
doc.recompute()

boolean23 = doc.addObject("PartDesign::Boolean", "Boolean022")
body25.addObject(boolean23)
boolean23.Type = "Fuse"
boolean23.addObjects([body24])
body26 = doc.addObject("PartDesign::Body", "Body025")
body26.AllowCompound = True
doc.recompute()

body25.Placement = App.Placement(Vector(0, 0, 0), App.Rotation(Vector(0, 0, 1), 22.5))
boolean24 = doc.addObject("PartDesign::Boolean", "Boolean023")
body26.addObject(boolean24)
boolean24.Type = "Fuse"
boolean24.addObjects([body25])
body27 = doc.addObject("PartDesign::Body", "Body026")

sketch17 = doc.addObject("Sketcher::SketchObject", "Sketch016")
body27.addObject(sketch17)
sketch17.AttachmentSupport = (doc.getObject("XY_Plane026"), [""])
sketch17.MapMode = "FlatFace"
sketch17.AttachmentOffset = App.Placement(Vector(0, 0, -16), App.Rotation())
sketch17.addGeometry([
    Part.Circle(Vector(0, 0, 0), Vector(0, 0, 1), 29),
    Part.Circle(Vector(0, 0, 0), Vector(0, 0, 1), 23),
], False)
sketch17.addConstraint([
    Sketcher.Constraint("Coincident", 0, 3, -1, 1),
    Sketcher.Constraint("Coincident", 1, 3, -1, 1),
    Sketcher.Constraint("Diameter", 0, Q("58 mm")),
    Sketcher.Constraint("Diameter", 1, Q("46 mm")),
])
pad17 = doc.addObject("PartDesign::Pad", "Pad016")
body27.addObject(pad17)
pad17.Profile = sketch17
pad17.Length = 6
doc.recompute()

boolean25 = doc.addObject("PartDesign::Boolean", "Boolean024")
body27.addObject(boolean25)
boolean25.Type = "Cut"
boolean25.addObjects([body26])
doc.recompute()

boolean26 = doc.addObject("PartDesign::Boolean", "Boolean025")
body27.addObject(boolean26)
boolean26.Type = "Cut"
boolean26.addObjects([body13])

doc.recompute()
